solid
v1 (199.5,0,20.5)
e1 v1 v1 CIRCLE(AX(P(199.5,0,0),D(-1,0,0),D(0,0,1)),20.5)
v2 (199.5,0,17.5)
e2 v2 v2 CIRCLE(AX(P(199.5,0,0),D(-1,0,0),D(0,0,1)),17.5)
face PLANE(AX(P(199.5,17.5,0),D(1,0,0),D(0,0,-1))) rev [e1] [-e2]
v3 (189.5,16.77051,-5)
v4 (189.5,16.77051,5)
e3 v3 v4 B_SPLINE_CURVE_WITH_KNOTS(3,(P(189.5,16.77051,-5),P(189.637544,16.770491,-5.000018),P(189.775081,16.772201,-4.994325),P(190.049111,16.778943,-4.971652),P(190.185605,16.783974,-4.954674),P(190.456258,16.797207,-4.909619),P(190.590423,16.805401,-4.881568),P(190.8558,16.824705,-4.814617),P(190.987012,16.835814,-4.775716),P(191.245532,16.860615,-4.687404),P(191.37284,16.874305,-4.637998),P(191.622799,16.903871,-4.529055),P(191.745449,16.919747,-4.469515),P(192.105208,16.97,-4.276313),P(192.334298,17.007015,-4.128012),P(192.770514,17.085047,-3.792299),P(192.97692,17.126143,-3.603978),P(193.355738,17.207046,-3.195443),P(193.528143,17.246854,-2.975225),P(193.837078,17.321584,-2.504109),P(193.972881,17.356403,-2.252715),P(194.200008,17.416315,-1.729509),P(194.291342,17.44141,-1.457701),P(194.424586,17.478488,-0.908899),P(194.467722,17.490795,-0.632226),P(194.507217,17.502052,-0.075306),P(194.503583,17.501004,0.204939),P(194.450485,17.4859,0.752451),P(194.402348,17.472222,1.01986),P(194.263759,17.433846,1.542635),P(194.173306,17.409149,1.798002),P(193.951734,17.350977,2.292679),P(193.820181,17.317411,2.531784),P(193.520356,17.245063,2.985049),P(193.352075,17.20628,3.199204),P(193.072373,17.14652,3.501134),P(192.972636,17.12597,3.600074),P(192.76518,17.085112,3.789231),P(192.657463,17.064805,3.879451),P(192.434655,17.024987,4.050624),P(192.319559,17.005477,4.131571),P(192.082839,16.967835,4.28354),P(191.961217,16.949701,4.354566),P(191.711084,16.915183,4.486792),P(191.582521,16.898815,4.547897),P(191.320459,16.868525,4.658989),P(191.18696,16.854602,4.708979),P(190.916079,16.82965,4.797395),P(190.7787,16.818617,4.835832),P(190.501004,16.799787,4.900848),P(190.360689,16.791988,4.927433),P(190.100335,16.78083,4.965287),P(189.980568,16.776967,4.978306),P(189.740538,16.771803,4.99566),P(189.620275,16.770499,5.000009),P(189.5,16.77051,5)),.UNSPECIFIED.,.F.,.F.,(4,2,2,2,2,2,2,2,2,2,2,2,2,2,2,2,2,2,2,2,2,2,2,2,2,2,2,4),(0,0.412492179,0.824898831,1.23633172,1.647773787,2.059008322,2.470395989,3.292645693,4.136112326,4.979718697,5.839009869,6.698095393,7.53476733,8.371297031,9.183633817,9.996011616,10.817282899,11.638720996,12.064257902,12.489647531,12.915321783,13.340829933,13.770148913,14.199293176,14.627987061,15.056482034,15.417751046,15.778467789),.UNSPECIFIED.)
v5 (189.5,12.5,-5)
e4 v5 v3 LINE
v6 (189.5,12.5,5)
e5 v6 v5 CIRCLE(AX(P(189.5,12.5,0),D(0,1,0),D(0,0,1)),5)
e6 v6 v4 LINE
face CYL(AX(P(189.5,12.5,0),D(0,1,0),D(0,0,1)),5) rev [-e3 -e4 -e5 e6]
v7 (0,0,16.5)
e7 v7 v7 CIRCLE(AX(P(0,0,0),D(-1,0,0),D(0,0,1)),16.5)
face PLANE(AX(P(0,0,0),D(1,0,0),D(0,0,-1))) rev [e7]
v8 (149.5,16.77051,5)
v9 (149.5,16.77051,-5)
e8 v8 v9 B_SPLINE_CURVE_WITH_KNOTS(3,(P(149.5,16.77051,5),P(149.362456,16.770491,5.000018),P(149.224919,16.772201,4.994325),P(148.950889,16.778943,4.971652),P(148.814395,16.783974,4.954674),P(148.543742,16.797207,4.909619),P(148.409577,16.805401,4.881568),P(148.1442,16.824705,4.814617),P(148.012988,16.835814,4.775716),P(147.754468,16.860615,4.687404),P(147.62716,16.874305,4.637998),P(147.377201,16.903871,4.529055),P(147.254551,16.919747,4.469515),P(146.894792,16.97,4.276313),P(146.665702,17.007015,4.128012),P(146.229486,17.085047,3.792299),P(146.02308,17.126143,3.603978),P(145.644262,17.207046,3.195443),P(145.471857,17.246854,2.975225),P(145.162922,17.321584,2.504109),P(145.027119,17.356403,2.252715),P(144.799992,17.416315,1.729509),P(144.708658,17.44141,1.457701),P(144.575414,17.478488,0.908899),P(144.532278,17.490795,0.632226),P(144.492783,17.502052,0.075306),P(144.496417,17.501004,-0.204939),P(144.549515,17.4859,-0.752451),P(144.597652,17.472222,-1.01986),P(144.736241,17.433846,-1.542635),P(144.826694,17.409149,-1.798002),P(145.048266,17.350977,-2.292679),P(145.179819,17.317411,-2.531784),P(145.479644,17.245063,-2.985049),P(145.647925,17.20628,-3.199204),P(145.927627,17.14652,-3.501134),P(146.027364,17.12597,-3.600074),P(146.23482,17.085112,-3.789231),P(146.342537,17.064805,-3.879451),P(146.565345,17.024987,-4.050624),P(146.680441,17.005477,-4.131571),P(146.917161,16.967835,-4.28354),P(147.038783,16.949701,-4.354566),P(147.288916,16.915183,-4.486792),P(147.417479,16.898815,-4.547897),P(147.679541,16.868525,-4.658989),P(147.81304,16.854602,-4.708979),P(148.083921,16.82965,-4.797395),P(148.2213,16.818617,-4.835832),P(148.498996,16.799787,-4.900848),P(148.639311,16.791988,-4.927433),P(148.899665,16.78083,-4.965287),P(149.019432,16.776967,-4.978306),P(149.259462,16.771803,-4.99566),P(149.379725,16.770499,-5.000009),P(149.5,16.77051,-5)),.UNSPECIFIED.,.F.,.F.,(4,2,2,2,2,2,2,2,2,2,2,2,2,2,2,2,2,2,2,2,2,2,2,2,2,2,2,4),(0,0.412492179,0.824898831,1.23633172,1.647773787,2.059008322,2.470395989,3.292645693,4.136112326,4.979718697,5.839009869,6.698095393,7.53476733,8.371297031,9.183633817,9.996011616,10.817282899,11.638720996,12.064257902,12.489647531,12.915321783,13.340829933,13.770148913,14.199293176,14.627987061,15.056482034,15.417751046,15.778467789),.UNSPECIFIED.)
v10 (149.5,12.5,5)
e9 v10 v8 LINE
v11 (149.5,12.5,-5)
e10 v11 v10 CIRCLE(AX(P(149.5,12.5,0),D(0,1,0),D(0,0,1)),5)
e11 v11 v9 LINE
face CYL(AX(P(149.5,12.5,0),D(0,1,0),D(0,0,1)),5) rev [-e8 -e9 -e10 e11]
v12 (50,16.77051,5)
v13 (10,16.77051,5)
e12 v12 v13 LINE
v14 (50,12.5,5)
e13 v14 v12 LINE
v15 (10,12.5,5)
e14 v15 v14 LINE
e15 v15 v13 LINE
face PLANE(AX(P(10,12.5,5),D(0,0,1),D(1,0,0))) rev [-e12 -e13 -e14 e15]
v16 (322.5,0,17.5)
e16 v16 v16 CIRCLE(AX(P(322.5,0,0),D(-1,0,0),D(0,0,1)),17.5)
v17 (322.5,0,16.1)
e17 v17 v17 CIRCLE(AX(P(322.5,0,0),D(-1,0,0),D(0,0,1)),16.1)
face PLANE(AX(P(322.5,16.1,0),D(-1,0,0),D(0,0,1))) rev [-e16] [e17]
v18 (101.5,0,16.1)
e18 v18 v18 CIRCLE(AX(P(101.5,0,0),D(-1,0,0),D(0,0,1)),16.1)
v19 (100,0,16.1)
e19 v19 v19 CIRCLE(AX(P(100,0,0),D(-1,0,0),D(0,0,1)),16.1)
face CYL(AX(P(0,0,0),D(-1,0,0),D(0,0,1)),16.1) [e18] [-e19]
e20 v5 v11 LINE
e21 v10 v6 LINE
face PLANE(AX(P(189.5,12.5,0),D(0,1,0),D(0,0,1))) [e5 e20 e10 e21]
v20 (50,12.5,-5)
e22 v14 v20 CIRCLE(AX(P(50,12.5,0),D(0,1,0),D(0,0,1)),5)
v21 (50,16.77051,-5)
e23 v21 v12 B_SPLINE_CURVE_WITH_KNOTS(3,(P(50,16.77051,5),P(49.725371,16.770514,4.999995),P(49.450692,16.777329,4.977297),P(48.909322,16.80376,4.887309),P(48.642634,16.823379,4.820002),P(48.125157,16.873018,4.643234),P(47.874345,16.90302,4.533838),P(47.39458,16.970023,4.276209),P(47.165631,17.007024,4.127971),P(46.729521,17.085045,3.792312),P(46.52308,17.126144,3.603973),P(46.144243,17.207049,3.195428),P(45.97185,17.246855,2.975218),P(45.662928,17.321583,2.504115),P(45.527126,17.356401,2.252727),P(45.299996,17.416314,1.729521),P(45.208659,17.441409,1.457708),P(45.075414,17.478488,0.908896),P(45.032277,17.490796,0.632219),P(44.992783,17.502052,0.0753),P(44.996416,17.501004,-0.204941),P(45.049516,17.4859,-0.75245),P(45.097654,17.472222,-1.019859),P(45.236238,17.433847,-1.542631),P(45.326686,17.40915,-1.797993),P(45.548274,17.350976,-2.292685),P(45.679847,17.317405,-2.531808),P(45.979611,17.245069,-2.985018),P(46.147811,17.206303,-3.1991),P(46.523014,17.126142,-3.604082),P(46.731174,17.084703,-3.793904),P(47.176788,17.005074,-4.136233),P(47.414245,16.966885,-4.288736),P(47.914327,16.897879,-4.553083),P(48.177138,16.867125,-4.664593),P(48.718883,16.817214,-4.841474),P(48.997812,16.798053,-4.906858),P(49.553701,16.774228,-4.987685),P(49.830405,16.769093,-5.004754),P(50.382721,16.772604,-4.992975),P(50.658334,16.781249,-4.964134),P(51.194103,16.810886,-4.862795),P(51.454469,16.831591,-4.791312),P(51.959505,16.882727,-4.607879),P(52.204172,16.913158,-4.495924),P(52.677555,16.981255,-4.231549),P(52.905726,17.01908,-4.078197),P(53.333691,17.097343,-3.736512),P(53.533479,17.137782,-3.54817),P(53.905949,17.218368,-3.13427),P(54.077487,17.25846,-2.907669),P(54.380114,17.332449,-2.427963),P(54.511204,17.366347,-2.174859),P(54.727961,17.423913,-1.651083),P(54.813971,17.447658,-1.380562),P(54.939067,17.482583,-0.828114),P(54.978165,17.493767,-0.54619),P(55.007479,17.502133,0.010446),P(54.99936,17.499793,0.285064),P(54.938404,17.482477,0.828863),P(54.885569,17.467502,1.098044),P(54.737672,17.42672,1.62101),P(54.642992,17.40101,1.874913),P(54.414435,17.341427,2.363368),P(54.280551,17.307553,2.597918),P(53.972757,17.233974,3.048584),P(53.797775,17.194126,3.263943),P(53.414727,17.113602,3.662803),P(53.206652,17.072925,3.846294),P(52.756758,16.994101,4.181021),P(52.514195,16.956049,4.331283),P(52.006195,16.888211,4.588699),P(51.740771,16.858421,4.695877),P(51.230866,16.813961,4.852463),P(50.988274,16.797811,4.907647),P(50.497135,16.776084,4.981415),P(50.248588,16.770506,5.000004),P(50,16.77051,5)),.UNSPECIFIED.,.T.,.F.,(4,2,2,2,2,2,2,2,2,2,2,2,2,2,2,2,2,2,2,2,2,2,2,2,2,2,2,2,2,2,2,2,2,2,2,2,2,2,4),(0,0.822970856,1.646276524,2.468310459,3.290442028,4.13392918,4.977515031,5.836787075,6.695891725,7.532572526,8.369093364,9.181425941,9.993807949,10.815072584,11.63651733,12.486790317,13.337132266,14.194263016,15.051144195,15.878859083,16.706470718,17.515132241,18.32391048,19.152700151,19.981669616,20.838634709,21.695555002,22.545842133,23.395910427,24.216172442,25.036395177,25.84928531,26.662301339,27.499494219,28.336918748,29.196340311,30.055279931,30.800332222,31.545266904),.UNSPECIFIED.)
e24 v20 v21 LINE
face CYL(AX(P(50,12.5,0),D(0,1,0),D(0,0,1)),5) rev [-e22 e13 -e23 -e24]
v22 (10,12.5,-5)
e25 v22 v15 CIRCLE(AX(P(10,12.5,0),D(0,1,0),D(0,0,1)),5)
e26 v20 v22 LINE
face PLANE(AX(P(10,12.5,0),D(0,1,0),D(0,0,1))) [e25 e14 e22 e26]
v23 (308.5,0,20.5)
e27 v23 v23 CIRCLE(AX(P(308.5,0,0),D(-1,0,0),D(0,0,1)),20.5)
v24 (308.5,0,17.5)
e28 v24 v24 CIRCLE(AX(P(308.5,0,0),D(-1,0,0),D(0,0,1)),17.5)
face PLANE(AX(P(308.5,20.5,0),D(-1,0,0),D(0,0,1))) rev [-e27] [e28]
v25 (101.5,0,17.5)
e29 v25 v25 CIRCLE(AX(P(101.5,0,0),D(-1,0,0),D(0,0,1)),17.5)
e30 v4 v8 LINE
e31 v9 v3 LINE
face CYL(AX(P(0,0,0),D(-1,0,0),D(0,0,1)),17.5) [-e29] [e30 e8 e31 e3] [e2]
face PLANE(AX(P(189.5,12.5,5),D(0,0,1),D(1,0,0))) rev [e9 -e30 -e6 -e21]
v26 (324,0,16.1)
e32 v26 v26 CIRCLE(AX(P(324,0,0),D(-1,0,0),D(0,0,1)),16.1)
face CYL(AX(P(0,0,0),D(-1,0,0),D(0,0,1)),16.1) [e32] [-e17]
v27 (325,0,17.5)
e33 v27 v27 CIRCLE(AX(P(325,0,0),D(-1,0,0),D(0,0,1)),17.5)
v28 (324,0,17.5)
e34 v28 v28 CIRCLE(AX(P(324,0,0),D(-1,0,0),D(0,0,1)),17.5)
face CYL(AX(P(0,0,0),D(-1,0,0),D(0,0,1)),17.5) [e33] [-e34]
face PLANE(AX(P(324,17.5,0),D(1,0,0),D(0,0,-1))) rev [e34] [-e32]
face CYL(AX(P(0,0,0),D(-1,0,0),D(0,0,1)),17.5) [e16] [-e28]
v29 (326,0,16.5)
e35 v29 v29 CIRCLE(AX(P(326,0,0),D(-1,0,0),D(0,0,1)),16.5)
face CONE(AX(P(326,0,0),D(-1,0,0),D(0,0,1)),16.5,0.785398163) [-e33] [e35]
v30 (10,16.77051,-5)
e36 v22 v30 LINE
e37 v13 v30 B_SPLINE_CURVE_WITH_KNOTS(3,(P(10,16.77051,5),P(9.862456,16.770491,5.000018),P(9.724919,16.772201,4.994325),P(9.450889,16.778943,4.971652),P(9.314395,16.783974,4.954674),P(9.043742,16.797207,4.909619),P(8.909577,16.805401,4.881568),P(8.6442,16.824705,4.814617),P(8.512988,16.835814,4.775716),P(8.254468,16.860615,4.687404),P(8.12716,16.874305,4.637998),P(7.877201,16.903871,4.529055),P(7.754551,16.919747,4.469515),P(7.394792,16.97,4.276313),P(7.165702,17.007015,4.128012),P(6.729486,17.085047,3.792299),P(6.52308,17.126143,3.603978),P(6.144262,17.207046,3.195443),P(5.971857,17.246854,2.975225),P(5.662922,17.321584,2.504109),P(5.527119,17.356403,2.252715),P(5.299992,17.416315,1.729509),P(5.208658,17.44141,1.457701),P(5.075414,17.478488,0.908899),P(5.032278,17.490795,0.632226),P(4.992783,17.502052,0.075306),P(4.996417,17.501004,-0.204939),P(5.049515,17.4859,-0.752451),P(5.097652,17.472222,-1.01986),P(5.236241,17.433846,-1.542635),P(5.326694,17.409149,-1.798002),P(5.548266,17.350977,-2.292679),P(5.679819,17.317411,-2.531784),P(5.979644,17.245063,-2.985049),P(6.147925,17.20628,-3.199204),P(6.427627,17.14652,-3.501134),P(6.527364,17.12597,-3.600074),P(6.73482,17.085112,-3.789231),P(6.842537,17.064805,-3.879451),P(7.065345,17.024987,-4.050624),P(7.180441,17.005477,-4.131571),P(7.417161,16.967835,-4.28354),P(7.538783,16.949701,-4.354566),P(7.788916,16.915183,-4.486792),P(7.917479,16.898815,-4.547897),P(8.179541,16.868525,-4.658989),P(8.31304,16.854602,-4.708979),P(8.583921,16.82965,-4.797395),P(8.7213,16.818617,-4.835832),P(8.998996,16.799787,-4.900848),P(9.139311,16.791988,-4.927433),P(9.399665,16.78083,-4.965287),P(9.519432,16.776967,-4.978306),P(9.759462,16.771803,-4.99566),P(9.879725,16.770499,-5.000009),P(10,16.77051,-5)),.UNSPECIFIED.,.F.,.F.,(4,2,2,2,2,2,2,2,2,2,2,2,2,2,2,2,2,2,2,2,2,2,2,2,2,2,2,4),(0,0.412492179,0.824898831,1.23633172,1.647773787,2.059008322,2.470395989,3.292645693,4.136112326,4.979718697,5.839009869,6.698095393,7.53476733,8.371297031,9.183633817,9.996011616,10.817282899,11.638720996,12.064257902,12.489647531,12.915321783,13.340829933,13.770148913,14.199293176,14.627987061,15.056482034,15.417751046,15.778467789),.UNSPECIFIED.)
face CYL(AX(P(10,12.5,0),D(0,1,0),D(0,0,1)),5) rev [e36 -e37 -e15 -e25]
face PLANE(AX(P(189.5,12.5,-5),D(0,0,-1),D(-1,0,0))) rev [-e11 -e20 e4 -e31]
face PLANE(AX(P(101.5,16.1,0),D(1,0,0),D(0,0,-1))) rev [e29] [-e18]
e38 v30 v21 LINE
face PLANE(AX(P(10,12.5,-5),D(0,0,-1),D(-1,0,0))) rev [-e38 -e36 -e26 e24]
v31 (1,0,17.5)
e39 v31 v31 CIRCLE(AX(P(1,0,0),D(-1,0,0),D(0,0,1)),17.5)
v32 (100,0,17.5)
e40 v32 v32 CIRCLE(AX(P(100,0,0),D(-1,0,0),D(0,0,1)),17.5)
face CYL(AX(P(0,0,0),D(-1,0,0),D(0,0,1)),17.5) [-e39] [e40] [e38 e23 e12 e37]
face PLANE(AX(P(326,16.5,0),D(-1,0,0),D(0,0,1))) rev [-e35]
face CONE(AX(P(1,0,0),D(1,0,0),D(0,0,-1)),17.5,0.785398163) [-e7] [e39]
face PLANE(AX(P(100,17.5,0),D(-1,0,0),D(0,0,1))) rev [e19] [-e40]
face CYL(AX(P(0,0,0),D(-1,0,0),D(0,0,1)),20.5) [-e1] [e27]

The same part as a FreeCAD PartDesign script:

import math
import FreeCAD as App
import Part
import Sketcher
from FreeCAD import Vector
Q = App.Units.Quantity

doc = App.newDocument("Part")
body = doc.addObject("PartDesign::Body", "Body")

# Sketch on XY plane
sketch1 = doc.addObject("Sketcher::SketchObject", "Sketch")
body.addObject(sketch1)
sketch1.AttachmentSupport = (doc.XY_Plane, [""])
sketch1.MapMode = "FlatFace"
sketch1.addGeometry(Part.LineSegment(Vector(0, 0, 0), Vector(326, 0, 0)), False)
sketch1.addGeometry(Part.LineSegment(Vector(326, 0, 0), Vector(326, 16.5, 0)), False)
sketch1.addGeometry(Part.LineSegment(Vector(326, 16.5, 0), Vector(325, 17.5, 0)), False)
sketch1.addGeometry(Part.LineSegment(Vector(325, 17.5, 0), Vector(324, 17.5, 0)), False)
sketch1.addGeometry(Part.LineSegment(Vector(324, 17.5, 0), Vector(324, 16.1, 0)), False)
sketch1.addGeometry(Part.LineSegment(Vector(324, 16.1, 0), Vector(322.5, 16.1, 0)), False)
sketch1.addGeometry(Part.LineSegment(Vector(322.5, 16.1, 0), Vector(322.5, 17.5, 0)), False)
sketch1.addGeometry(Part.LineSegment(Vector(322.5, 17.5, 0), Vector(308.5, 17.5, 0)), False)
sketch1.addGeometry(Part.LineSegment(Vector(308.5, 17.5, 0), Vector(308.5, 20.5, 0)), False)
sketch1.addGeometry(Part.LineSegment(Vector(308.5, 20.5, 0), Vector(199.5, 20.5, 0)), False)
sketch1.addGeometry(Part.LineSegment(Vector(199.5, 20.5, 0), Vector(199.5, 17.5, 0)), False)
sketch1.addGeometry(Part.LineSegment(Vector(199.5, 17.5, 0), Vector(101.5, 17.5, 0)), False)
sketch1.addGeometry(Part.LineSegment(Vector(101.5, 17.5, 0), Vector(101.5, 16.1, 0)), False)
sketch1.addGeometry(Part.LineSegment(Vector(101.5, 16.1, 0), Vector(100, 16.1, 0)), False)
sketch1.addGeometry(Part.LineSegment(Vector(100, 16.1, 0), Vector(100, 17.5, 0)), False)
sketch1.addGeometry(Part.LineSegment(Vector(100, 17.5, 0), Vector(1, 17.5, 0)), False)
sketch1.addGeometry(Part.LineSegment(Vector(1, 17.5, 0), Vector(0, 16.5, 0)), False)
sketch1.addGeometry(Part.LineSegment(Vector(0, 16.5, 0), Vector(0, 0, 0)), False)
sketch1.addConstraint(Sketcher.Constraint("Coincident", 0, 2, 1, 1))
sketch1.addConstraint(Sketcher.Constraint("Coincident", 1, 2, 2, 1))
sketch1.addConstraint(Sketcher.Constraint("Coincident", 2, 2, 3, 1))
sketch1.addConstraint(Sketcher.Constraint("Coincident", 3, 2, 4, 1))
sketch1.addConstraint(Sketcher.Constraint("Coincident", 4, 2, 5, 1))
sketch1.addConstraint(Sketcher.Constraint("Coincident", 5, 2, 6, 1))
sketch1.addConstraint(Sketcher.Constraint("Coincident", 6, 2, 7, 1))
sketch1.addConstraint(Sketcher.Constraint("Coincident", 7, 2, 8, 1))
sketch1.addConstraint(Sketcher.Constraint("Coincident", 8, 2, 9, 1))
sketch1.addConstraint(Sketcher.Constraint("Coincident", 9, 2, 10, 1))
sketch1.addConstraint(Sketcher.Constraint("Coincident", 10, 2, 11, 1))
sketch1.addConstraint(Sketcher.Constraint("Coincident", 11, 2, 12, 1))
sketch1.addConstraint(Sketcher.Constraint("Coincident", 12, 2, 13, 1))
sketch1.addConstraint(Sketcher.Constraint("Coincident", 13, 2, 14, 1))
sketch1.addConstraint(Sketcher.Constraint("Coincident", 14, 2, 15, 1))
sketch1.addConstraint(Sketcher.Constraint("Coincident", 15, 2, 16, 1))
sketch1.addConstraint(Sketcher.Constraint("Coincident", 16, 2, 17, 1))
sketch1.addConstraint(Sketcher.Constraint("Coincident", 17, 2, 0, 1))
sketch1.addConstraint(Sketcher.Constraint("Horizontal", 0))
sketch1.addConstraint(Sketcher.Constraint("Vertical", 1))
sketch1.addConstraint(Sketcher.Constraint("Horizontal", 3))
sketch1.addConstraint(Sketcher.Constraint("Vertical", 4))
sketch1.addConstraint(Sketcher.Constraint("Horizontal", 5))
sketch1.addConstraint(Sketcher.Constraint("Vertical", 6))
sketch1.addConstraint(Sketcher.Constraint("Horizontal", 7))
sketch1.addConstraint(Sketcher.Constraint("Vertical", 8))
sketch1.addConstraint(Sketcher.Constraint("Horizontal", 9))
sketch1.addConstraint(Sketcher.Constraint("Vertical", 10))
sketch1.addConstraint(Sketcher.Constraint("Horizontal", 11))
sketch1.addConstraint(Sketcher.Constraint("Vertical", 12))
sketch1.addConstraint(Sketcher.Constraint("Horizontal", 13))
sketch1.addConstraint(Sketcher.Constraint("Vertical", 14))
sketch1.addConstraint(Sketcher.Constraint("Horizontal", 15))
sketch1.addConstraint(Sketcher.Constraint("Vertical", 17))
sketch1.addConstraint(Sketcher.Constraint("Coincident", 17, 2, -1, 1))
sketch1.addConstraint(Sketcher.Constraint("Perpendicular", 2, 16))
sketch1.addConstraint(Sketcher.Constraint("Horizontal", 3, 2, 6, 2))
sketch1.addConstraint(Sketcher.Constraint("Horizontal", 7, 2, 10, 2))
sketch1.addConstraint(Sketcher.Constraint("Horizontal", 5, 2, 12, 2))
sketch1.addConstraint(Sketcher.Constraint("Horizontal", 11, 2, 14, 2))
sketch1.addConstraint(Sketcher.Constraint("Horizontal", 1, 2, 16, 2))
sketch1.addConstraint(Sketcher.Constraint("Equal", 5, 13))
sketch1.addConstraint(Sketcher.Constraint("Equal", 2, 16))
sketch1.addConstraint(Sketcher.Constraint("DistanceX", 0, 1, 0, 2, Q("326 mm")))
sketch1.addConstraint(Sketcher.Constraint("DistanceX", 3, 2, 3, 1, Q("1 mm")))
sketch1.addConstraint(Sketcher.Constraint("DistanceX", 7, 2, 7, 1, Q("14 mm")))
sketch1.addConstraint(Sketcher.Constraint("DistanceX", 9, 2, 9, 1, Q("109 mm")))
sketch1.addConstraint(Sketcher.Constraint("DistanceX", 11, 2, 11, 1, Q("98 mm")))
sketch1.addConstraint(Sketcher.Constraint("DistanceX", 15, 2, 15, 1, Q("99 mm")))
sketch1.addConstraint(Sketcher.Constraint("DistanceY", 8, 1, 8, 2, Q("3 mm")))
sketch1.addConstraint(Sketcher.Constraint("DistanceX", 5, 2, 5, 1, Q("1.5 mm")))
sketch1.addConstraint(Sketcher.Constraint("DistanceY", 1, 1, 1, 2, Q("16.5 mm")))
sketch1.addConstraint(Sketcher.Constraint("DistanceY", 4, 2, 4, 1, Q("1.4 mm")))
revolution = doc.addObject("PartDesign::Revolution", "Revolution")
body.addObject(revolution)
revolution.Profile = sketch1
revolution.ReferenceAxis = (sketch1, ["H_Axis"])
revolution.Angle = 360

# Sketch on XZ plane
sketch2 = doc.addObject("Sketcher::SketchObject", "Sketch001")
body.addObject(sketch2)
sketch2.AttachmentSupport = (doc.XZ_Plane, [""])
sketch2.MapMode = "FlatFace"
sketch2.AttachmentOffset = App.Placement(Vector(0, 0, -17.5), App.Rotation())
sketch2.addGeometry(Part.LineSegment(Vector(150, 5, 0), Vector(190, 5, 0)), False)
sketch2.addGeometry(Part.ArcOfCircle(Part.Circle(Vector(190, 0, 0), Vector(0, 0, 1), 5), math.radians(-90), math.radians(90)), False)
sketch2.addGeometry(Part.LineSegment(Vector(190, -5, 0), Vector(150, -5, 0)), False)
sketch2.addGeometry(Part.ArcOfCircle(Part.Circle(Vector(150, 0, 0), Vector(0, 0, 1), 5), math.radians(90), math.radians(270)), False)
sketch2.addConstraint(Sketcher.Constraint("Tangent", 0, 2, 1, 2))
sketch2.addConstraint(Sketcher.Constraint("Tangent", 1, 1, 2, 1))
sketch2.addConstraint(Sketcher.Constraint("Tangent", 2, 2, 3, 2))
sketch2.addConstraint(Sketcher.Constraint("Tangent", 3, 1, 0, 1))
sketch2.addConstraint(Sketcher.Constraint("Horizontal", 0))
sketch2.addConstraint(Sketcher.Constraint("Horizontal", 2))
sketch2.addConstraint(Sketcher.Constraint("PointOnObject", 1, 3, -1))
sketch2.addConstraint(Sketcher.Constraint("Radius", 1, Q("5 mm")))
sketch2.addConstraint(Sketcher.Constraint("DistanceX", 0, 1, 0, 2, Q("40 mm")))
sketch2.addConstraint(Sketcher.Constraint("DistanceX", -1, 1, 1, 3, Q("189.5 mm")))
pocket1 = doc.addObject("PartDesign::Pocket", "Pocket")
body.addObject(pocket1)
pocket1.Profile = sketch2
pocket1.Length = 5
pocket1.Reversed = True

# Sketch on XZ plane
sketch3 = doc.addObject("Sketcher::SketchObject", "Sketch002")
body.addObject(sketch3)
sketch3.AttachmentSupport = (doc.XZ_Plane, [""])
sketch3.MapMode = "FlatFace"
sketch3.AttachmentOffset = App.Placement(Vector(0, 0, -17.5), App.Rotation())
sketch3.addGeometry(Part.LineSegment(Vector(190, -5, 0), Vector(150, -5, 0)), False)
sketch3.addGeometry(Part.ArcOfCircle(Part.Circle(Vector(150, 0, 0), Vector(0, 0, 1), 5), math.radians(90), math.radians(270)), False)
sketch3.addGeometry(Part.LineSegment(Vector(150, 5, 0), Vector(190, 5, 0)), False)
sketch3.addGeometry(Part.ArcOfCircle(Part.Circle(Vector(190, 0, 0), Vector(0, 0, 1), 5), math.radians(-90), math.radians(90)), False)
sketch3.addGeometry(Part.LineSegment(Vector(50, -5, 0), Vector(10, -5, 0)), False)
sketch3.addGeometry(Part.ArcOfCircle(Part.Circle(Vector(10, 0, 0), Vector(0, 0, 1), 5), math.radians(90), math.radians(270)), False)
sketch3.addGeometry(Part.LineSegment(Vector(10, 5, 0), Vector(50, 5, 0)), False)
sketch3.addGeometry(Part.ArcOfCircle(Part.Circle(Vector(50, 0, 0), Vector(0, 0, 1), 5), math.radians(-90), math.radians(90)), False)
sketch3.addConstraint(Sketcher.Constraint("Tangent", 0, 2, 1, 2))
sketch3.addConstraint(Sketcher.Constraint("Tangent", 1, 1, 2, 1))
sketch3.addConstraint(Sketcher.Constraint("Tangent", 2, 2, 3, 2))
sketch3.addConstraint(Sketcher.Constraint("Tangent", 3, 1, 0, 1))
sketch3.addConstraint(Sketcher.Constraint("Tangent", 4, 2, 5, 2))
sketch3.addConstraint(Sketcher.Constraint("Tangent", 5, 1, 6, 1))
sketch3.addConstraint(Sketcher.Constraint("Tangent", 6, 2, 7, 2))
sketch3.addConstraint(Sketcher.Constraint("Tangent", 7, 1, 4, 1))
sketch3.addConstraint(Sketcher.Constraint("Horizontal", 0))
sketch3.addConstraint(Sketcher.Constraint("Horizontal", 2))
sketch3.addConstraint(Sketcher.Constraint("Horizontal", 4))
sketch3.addConstraint(Sketcher.Constraint("Horizontal", 6))
sketch3.addConstraint(Sketcher.Constraint("Equal", 3, 5))
sketch3.addConstraint(Sketcher.Constraint("PointOnObject", 1, 3, -1))
sketch3.addConstraint(Sketcher.Constraint("PointOnObject", 5, 3, -1))
sketch3.addConstraint(Sketcher.Constraint("Equal", 2, 4))
sketch3.addConstraint(Sketcher.Constraint("Radius", 1, Q("5 mm")))
sketch3.addConstraint(Sketcher.Constraint("DistanceX", 0, 2, 0, 1, Q("40 mm")))
sketch3.addConstraint(Sketcher.Constraint("DistanceX", -1, 1, 5, 3, Q("10 mm")))
sketch3.addConstraint(Sketcher.Constraint("DistanceX", -1, 1, 1, 3, Q("149.5 mm")))
pocket2 = doc.addObject("PartDesign::Pocket", "Pocket001")
body.addObject(pocket2)
pocket2.Profile = sketch3
pocket2.Length = 5
pocket2.Reversed = True

doc.recompute()
